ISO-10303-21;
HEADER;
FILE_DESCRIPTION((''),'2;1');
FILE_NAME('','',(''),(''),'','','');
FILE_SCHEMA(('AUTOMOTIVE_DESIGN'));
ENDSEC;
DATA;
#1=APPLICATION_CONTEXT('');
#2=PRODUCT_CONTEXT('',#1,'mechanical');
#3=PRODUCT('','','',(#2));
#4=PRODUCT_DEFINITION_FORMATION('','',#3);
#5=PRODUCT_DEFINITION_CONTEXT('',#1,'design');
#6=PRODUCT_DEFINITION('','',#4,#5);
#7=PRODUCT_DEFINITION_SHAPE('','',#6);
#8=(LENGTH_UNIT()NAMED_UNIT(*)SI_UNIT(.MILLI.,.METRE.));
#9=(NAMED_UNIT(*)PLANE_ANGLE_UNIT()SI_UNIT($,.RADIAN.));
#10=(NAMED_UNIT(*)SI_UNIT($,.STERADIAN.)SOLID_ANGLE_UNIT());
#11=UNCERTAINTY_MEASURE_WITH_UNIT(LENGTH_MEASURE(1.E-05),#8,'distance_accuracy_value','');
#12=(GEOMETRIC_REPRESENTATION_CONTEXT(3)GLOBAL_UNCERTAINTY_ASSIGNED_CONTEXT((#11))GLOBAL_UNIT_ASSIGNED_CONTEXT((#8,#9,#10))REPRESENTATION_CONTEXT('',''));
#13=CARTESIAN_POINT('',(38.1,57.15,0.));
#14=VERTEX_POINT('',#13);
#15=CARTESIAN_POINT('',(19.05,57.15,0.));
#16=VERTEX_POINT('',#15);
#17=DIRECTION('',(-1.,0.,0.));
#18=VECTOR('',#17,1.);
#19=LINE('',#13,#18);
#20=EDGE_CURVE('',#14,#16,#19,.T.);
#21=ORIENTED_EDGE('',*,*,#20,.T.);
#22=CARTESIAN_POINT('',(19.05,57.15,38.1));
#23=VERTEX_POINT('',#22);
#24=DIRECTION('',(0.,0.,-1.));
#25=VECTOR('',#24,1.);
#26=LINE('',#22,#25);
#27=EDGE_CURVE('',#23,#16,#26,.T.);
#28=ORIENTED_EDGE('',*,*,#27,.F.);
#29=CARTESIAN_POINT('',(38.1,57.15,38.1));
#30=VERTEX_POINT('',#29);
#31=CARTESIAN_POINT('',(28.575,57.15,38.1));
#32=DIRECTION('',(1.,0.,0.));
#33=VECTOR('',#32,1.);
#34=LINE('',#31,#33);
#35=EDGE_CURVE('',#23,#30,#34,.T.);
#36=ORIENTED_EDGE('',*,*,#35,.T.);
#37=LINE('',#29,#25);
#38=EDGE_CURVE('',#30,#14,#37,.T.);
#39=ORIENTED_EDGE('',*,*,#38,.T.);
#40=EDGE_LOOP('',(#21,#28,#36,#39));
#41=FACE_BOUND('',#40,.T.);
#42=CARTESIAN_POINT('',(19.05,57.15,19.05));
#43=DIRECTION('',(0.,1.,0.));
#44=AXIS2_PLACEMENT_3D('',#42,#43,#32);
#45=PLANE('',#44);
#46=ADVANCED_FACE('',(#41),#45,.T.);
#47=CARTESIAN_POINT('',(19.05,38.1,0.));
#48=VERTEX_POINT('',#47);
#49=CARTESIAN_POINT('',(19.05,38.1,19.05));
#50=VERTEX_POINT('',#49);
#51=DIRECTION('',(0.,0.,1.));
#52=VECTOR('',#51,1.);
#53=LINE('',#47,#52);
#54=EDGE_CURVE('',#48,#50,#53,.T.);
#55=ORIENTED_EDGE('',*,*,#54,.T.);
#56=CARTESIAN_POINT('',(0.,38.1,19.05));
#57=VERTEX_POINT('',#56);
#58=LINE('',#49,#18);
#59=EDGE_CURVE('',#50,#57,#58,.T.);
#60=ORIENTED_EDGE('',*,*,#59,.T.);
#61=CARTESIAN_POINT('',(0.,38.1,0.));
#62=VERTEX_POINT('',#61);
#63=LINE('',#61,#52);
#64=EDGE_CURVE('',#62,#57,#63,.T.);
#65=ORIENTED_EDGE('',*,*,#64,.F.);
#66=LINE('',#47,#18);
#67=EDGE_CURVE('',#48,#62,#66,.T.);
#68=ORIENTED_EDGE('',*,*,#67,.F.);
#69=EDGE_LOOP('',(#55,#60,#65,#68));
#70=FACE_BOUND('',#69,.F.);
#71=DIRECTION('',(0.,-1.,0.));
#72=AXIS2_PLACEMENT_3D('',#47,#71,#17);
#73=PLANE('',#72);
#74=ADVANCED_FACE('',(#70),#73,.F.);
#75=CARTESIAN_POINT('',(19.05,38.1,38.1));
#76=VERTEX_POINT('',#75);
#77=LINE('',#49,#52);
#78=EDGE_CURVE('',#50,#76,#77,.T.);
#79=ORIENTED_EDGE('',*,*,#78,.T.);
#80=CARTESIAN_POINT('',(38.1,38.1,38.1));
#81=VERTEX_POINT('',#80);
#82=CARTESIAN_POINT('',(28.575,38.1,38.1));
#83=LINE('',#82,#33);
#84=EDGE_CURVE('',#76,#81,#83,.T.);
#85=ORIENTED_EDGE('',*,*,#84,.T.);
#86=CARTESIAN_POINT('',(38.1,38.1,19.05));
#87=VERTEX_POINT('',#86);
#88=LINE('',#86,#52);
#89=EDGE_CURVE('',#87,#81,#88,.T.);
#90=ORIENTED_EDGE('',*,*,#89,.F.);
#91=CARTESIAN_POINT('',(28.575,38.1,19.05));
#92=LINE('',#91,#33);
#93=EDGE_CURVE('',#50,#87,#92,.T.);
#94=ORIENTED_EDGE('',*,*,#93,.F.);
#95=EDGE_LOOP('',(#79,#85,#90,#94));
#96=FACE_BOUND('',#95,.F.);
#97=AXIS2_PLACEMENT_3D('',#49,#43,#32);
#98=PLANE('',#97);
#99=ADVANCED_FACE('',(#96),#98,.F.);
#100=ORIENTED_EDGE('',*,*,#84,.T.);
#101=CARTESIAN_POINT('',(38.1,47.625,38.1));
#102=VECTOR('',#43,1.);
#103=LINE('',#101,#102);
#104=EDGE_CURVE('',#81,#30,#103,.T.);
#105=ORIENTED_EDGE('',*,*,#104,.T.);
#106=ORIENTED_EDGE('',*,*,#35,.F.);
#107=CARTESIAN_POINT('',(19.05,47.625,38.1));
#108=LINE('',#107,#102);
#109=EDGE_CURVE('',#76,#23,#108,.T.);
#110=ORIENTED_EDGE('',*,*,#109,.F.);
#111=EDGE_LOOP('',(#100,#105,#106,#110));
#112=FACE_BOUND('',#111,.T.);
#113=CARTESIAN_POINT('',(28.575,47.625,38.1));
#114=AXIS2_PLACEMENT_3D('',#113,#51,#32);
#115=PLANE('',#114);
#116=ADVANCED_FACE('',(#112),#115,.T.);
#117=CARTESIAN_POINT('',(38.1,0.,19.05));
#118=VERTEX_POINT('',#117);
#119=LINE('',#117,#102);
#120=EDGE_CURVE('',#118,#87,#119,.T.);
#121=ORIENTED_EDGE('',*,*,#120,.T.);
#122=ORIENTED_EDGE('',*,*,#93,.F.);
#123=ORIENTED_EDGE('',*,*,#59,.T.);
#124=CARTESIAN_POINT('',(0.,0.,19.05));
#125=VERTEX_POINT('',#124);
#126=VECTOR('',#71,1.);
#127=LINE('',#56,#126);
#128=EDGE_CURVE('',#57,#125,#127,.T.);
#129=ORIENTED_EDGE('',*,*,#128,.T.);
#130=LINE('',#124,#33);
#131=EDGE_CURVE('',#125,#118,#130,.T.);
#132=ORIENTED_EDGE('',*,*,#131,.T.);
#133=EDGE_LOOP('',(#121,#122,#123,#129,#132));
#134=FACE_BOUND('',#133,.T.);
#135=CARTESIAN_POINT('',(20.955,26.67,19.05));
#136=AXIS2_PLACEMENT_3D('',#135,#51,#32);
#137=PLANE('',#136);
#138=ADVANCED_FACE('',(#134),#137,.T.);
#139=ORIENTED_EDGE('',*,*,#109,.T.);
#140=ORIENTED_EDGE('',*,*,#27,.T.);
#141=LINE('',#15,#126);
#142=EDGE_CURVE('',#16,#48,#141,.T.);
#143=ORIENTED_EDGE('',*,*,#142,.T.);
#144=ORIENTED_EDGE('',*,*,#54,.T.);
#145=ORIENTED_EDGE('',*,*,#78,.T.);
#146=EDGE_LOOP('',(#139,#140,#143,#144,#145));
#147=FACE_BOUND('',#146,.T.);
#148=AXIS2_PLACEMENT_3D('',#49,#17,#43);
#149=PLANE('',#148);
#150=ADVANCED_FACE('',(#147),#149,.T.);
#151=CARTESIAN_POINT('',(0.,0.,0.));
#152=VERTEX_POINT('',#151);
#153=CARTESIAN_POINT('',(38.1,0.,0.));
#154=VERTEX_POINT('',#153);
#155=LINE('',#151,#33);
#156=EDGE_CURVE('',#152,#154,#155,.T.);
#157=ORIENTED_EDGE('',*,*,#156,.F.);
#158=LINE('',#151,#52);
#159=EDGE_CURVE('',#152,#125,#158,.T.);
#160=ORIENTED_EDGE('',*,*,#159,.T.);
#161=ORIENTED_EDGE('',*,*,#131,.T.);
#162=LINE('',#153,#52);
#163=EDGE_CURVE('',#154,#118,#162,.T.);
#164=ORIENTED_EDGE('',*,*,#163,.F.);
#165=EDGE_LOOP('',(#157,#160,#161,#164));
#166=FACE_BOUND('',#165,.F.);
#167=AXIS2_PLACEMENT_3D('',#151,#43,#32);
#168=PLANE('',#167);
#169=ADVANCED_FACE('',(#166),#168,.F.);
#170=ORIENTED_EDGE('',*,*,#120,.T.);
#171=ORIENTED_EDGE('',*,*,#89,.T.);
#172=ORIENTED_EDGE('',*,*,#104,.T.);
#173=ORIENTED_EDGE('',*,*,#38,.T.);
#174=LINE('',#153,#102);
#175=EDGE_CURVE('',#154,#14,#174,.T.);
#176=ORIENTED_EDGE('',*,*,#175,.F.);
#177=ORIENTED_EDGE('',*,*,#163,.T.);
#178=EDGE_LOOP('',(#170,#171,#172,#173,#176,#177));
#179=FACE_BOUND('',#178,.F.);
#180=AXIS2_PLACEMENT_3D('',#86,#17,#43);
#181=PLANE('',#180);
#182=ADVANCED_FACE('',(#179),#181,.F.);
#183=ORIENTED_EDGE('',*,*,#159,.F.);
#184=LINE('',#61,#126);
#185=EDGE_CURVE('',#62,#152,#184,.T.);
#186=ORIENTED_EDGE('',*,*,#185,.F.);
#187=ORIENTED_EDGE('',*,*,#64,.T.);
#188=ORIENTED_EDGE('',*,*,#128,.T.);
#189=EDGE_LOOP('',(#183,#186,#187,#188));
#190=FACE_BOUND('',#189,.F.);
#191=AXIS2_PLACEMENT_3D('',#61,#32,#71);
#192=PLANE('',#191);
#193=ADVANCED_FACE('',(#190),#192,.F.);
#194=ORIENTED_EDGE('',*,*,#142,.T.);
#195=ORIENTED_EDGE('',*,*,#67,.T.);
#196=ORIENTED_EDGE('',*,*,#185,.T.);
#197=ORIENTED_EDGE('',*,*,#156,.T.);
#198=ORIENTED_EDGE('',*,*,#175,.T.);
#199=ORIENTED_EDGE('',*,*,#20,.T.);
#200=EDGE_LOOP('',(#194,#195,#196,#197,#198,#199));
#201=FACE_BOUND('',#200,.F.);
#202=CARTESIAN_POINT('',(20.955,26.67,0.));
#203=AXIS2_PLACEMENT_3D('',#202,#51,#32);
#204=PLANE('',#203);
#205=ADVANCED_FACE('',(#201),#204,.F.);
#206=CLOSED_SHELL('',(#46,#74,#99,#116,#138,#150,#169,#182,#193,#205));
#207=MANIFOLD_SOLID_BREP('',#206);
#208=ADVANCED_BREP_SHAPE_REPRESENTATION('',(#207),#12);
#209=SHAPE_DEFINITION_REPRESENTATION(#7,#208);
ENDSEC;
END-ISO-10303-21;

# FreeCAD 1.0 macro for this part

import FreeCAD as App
import Part
import Sketcher
from FreeCAD import Vector
Q = App.Units.Quantity

doc = App.newDocument("Part")
body = doc.addObject("PartDesign::Body", "Body")

# Sketch on XY plane
sketch1 = body.newObject("Sketcher::SketchObject", "Sketch")
sketch1.AttachmentSupport = (doc.getObject("XY_Plane"), [""])
sketch1.MapMode = "FlatFace"
sketch1.addGeometry([
    Part.LineSegment(Vector(19, 38, 0), Vector(0, 38, 0)),  # 0
    Part.LineSegment(Vector(0, 38, 0), Vector(0, 0, 0)),  # 1
    Part.LineSegment(Vector(0, 0, 0), Vector(38, 0, 0)),  # 2
    Part.LineSegment(Vector(38, 0, 0), Vector(38, 57, 0)),  # 3
    Part.LineSegment(Vector(38, 57, 0), Vector(19, 57, 0)),  # 4
    Part.LineSegment(Vector(19, 57, 0), Vector(19, 38, 0)),  # 5
], False)
sketch1.addConstraint([
    Sketcher.Constraint("Coincident", 0, 2, 1, 1),
    Sketcher.Constraint("Coincident", 1, 2, 2, 1),
    Sketcher.Constraint("Coincident", 2, 2, 3, 1),
    Sketcher.Constraint("Coincident", 3, 2, 4, 1),
    Sketcher.Constraint("Coincident", 4, 2, 5, 1),
    Sketcher.Constraint("Coincident", 5, 2, 0, 1),
    Sketcher.Constraint("Horizontal", 0),
    Sketcher.Constraint("Vertical", 1),
    Sketcher.Constraint("Horizontal", 2),
    Sketcher.Constraint("Vertical", 3),
    Sketcher.Constraint("Horizontal", 4),
    Sketcher.Constraint("Vertical", 5),
    Sketcher.Constraint("Coincident", 1, 2, -1, 1),
    Sketcher.Constraint("Equal", 0, 4),
    Sketcher.Constraint("Equal", 2, 1),
    Sketcher.Constraint("Equal", 4, 5),
    Sketcher.Constraint("DistanceX", 2, 1, 2, 2, Q("1.5 in")),
])
pad1 = body.newObject("PartDesign::Pad", "Pad")
pad1.Profile = sketch1
pad1.Length = Q("0.75 in")

# Sketch on XY plane
sketch2 = body.newObject("Sketcher::SketchObject", "Sketch001")
sketch2.AttachmentSupport = (doc.getObject("XY_Plane"), [""])
sketch2.MapMode = "FlatFace"
sketch2.AttachmentOffset = App.Placement(Vector(0, 0, 0.75 * 25.4), App.Rotation())
sketch2.addGeometry([
    Part.LineSegment(Vector(19, 57, 0), Vector(19, 38, 0)),
    Part.LineSegment(Vector(19, 38, 0), Vector(38, 38, 0)),
    Part.LineSegment(Vector(38, 38, 0), Vector(38, 57, 0)),
    Part.LineSegment(Vector(38, 57, 0), Vector(19, 57, 0)),
], False)
sketch2.addConstraint([
    Sketcher.Constraint("Coincident", 0, 2, 1, 1),
    Sketcher.Constraint("Coincident", 1, 2, 2, 1),
    Sketcher.Constraint("Coincident", 2, 2, 3, 1),
    Sketcher.Constraint("Coincident", 3, 2, 0, 1),
    Sketcher.Constraint("Vertical", 0),
    Sketcher.Constraint("Horizontal", 1),
    Sketcher.Constraint("Vertical", 2),
    Sketcher.Constraint("Horizontal", 3),
    Sketcher.Constraint("Equal", 3, 0),
    Sketcher.Constraint("DistanceX", 1, 1, 1, 2, Q("0.75 in")),
    Sketcher.Constraint("DistanceY", -1, 1, 0, 2, Q("1.5 in")),
    Sketcher.Constraint("DistanceX", -1, 1, 1, 2, Q("1.5 in")),
])
pad2 = body.newObject("PartDesign::Pad", "Pad001")
pad2.Profile = sketch2
pad2.Length = Q("0.75 in")

doc.recompute()
